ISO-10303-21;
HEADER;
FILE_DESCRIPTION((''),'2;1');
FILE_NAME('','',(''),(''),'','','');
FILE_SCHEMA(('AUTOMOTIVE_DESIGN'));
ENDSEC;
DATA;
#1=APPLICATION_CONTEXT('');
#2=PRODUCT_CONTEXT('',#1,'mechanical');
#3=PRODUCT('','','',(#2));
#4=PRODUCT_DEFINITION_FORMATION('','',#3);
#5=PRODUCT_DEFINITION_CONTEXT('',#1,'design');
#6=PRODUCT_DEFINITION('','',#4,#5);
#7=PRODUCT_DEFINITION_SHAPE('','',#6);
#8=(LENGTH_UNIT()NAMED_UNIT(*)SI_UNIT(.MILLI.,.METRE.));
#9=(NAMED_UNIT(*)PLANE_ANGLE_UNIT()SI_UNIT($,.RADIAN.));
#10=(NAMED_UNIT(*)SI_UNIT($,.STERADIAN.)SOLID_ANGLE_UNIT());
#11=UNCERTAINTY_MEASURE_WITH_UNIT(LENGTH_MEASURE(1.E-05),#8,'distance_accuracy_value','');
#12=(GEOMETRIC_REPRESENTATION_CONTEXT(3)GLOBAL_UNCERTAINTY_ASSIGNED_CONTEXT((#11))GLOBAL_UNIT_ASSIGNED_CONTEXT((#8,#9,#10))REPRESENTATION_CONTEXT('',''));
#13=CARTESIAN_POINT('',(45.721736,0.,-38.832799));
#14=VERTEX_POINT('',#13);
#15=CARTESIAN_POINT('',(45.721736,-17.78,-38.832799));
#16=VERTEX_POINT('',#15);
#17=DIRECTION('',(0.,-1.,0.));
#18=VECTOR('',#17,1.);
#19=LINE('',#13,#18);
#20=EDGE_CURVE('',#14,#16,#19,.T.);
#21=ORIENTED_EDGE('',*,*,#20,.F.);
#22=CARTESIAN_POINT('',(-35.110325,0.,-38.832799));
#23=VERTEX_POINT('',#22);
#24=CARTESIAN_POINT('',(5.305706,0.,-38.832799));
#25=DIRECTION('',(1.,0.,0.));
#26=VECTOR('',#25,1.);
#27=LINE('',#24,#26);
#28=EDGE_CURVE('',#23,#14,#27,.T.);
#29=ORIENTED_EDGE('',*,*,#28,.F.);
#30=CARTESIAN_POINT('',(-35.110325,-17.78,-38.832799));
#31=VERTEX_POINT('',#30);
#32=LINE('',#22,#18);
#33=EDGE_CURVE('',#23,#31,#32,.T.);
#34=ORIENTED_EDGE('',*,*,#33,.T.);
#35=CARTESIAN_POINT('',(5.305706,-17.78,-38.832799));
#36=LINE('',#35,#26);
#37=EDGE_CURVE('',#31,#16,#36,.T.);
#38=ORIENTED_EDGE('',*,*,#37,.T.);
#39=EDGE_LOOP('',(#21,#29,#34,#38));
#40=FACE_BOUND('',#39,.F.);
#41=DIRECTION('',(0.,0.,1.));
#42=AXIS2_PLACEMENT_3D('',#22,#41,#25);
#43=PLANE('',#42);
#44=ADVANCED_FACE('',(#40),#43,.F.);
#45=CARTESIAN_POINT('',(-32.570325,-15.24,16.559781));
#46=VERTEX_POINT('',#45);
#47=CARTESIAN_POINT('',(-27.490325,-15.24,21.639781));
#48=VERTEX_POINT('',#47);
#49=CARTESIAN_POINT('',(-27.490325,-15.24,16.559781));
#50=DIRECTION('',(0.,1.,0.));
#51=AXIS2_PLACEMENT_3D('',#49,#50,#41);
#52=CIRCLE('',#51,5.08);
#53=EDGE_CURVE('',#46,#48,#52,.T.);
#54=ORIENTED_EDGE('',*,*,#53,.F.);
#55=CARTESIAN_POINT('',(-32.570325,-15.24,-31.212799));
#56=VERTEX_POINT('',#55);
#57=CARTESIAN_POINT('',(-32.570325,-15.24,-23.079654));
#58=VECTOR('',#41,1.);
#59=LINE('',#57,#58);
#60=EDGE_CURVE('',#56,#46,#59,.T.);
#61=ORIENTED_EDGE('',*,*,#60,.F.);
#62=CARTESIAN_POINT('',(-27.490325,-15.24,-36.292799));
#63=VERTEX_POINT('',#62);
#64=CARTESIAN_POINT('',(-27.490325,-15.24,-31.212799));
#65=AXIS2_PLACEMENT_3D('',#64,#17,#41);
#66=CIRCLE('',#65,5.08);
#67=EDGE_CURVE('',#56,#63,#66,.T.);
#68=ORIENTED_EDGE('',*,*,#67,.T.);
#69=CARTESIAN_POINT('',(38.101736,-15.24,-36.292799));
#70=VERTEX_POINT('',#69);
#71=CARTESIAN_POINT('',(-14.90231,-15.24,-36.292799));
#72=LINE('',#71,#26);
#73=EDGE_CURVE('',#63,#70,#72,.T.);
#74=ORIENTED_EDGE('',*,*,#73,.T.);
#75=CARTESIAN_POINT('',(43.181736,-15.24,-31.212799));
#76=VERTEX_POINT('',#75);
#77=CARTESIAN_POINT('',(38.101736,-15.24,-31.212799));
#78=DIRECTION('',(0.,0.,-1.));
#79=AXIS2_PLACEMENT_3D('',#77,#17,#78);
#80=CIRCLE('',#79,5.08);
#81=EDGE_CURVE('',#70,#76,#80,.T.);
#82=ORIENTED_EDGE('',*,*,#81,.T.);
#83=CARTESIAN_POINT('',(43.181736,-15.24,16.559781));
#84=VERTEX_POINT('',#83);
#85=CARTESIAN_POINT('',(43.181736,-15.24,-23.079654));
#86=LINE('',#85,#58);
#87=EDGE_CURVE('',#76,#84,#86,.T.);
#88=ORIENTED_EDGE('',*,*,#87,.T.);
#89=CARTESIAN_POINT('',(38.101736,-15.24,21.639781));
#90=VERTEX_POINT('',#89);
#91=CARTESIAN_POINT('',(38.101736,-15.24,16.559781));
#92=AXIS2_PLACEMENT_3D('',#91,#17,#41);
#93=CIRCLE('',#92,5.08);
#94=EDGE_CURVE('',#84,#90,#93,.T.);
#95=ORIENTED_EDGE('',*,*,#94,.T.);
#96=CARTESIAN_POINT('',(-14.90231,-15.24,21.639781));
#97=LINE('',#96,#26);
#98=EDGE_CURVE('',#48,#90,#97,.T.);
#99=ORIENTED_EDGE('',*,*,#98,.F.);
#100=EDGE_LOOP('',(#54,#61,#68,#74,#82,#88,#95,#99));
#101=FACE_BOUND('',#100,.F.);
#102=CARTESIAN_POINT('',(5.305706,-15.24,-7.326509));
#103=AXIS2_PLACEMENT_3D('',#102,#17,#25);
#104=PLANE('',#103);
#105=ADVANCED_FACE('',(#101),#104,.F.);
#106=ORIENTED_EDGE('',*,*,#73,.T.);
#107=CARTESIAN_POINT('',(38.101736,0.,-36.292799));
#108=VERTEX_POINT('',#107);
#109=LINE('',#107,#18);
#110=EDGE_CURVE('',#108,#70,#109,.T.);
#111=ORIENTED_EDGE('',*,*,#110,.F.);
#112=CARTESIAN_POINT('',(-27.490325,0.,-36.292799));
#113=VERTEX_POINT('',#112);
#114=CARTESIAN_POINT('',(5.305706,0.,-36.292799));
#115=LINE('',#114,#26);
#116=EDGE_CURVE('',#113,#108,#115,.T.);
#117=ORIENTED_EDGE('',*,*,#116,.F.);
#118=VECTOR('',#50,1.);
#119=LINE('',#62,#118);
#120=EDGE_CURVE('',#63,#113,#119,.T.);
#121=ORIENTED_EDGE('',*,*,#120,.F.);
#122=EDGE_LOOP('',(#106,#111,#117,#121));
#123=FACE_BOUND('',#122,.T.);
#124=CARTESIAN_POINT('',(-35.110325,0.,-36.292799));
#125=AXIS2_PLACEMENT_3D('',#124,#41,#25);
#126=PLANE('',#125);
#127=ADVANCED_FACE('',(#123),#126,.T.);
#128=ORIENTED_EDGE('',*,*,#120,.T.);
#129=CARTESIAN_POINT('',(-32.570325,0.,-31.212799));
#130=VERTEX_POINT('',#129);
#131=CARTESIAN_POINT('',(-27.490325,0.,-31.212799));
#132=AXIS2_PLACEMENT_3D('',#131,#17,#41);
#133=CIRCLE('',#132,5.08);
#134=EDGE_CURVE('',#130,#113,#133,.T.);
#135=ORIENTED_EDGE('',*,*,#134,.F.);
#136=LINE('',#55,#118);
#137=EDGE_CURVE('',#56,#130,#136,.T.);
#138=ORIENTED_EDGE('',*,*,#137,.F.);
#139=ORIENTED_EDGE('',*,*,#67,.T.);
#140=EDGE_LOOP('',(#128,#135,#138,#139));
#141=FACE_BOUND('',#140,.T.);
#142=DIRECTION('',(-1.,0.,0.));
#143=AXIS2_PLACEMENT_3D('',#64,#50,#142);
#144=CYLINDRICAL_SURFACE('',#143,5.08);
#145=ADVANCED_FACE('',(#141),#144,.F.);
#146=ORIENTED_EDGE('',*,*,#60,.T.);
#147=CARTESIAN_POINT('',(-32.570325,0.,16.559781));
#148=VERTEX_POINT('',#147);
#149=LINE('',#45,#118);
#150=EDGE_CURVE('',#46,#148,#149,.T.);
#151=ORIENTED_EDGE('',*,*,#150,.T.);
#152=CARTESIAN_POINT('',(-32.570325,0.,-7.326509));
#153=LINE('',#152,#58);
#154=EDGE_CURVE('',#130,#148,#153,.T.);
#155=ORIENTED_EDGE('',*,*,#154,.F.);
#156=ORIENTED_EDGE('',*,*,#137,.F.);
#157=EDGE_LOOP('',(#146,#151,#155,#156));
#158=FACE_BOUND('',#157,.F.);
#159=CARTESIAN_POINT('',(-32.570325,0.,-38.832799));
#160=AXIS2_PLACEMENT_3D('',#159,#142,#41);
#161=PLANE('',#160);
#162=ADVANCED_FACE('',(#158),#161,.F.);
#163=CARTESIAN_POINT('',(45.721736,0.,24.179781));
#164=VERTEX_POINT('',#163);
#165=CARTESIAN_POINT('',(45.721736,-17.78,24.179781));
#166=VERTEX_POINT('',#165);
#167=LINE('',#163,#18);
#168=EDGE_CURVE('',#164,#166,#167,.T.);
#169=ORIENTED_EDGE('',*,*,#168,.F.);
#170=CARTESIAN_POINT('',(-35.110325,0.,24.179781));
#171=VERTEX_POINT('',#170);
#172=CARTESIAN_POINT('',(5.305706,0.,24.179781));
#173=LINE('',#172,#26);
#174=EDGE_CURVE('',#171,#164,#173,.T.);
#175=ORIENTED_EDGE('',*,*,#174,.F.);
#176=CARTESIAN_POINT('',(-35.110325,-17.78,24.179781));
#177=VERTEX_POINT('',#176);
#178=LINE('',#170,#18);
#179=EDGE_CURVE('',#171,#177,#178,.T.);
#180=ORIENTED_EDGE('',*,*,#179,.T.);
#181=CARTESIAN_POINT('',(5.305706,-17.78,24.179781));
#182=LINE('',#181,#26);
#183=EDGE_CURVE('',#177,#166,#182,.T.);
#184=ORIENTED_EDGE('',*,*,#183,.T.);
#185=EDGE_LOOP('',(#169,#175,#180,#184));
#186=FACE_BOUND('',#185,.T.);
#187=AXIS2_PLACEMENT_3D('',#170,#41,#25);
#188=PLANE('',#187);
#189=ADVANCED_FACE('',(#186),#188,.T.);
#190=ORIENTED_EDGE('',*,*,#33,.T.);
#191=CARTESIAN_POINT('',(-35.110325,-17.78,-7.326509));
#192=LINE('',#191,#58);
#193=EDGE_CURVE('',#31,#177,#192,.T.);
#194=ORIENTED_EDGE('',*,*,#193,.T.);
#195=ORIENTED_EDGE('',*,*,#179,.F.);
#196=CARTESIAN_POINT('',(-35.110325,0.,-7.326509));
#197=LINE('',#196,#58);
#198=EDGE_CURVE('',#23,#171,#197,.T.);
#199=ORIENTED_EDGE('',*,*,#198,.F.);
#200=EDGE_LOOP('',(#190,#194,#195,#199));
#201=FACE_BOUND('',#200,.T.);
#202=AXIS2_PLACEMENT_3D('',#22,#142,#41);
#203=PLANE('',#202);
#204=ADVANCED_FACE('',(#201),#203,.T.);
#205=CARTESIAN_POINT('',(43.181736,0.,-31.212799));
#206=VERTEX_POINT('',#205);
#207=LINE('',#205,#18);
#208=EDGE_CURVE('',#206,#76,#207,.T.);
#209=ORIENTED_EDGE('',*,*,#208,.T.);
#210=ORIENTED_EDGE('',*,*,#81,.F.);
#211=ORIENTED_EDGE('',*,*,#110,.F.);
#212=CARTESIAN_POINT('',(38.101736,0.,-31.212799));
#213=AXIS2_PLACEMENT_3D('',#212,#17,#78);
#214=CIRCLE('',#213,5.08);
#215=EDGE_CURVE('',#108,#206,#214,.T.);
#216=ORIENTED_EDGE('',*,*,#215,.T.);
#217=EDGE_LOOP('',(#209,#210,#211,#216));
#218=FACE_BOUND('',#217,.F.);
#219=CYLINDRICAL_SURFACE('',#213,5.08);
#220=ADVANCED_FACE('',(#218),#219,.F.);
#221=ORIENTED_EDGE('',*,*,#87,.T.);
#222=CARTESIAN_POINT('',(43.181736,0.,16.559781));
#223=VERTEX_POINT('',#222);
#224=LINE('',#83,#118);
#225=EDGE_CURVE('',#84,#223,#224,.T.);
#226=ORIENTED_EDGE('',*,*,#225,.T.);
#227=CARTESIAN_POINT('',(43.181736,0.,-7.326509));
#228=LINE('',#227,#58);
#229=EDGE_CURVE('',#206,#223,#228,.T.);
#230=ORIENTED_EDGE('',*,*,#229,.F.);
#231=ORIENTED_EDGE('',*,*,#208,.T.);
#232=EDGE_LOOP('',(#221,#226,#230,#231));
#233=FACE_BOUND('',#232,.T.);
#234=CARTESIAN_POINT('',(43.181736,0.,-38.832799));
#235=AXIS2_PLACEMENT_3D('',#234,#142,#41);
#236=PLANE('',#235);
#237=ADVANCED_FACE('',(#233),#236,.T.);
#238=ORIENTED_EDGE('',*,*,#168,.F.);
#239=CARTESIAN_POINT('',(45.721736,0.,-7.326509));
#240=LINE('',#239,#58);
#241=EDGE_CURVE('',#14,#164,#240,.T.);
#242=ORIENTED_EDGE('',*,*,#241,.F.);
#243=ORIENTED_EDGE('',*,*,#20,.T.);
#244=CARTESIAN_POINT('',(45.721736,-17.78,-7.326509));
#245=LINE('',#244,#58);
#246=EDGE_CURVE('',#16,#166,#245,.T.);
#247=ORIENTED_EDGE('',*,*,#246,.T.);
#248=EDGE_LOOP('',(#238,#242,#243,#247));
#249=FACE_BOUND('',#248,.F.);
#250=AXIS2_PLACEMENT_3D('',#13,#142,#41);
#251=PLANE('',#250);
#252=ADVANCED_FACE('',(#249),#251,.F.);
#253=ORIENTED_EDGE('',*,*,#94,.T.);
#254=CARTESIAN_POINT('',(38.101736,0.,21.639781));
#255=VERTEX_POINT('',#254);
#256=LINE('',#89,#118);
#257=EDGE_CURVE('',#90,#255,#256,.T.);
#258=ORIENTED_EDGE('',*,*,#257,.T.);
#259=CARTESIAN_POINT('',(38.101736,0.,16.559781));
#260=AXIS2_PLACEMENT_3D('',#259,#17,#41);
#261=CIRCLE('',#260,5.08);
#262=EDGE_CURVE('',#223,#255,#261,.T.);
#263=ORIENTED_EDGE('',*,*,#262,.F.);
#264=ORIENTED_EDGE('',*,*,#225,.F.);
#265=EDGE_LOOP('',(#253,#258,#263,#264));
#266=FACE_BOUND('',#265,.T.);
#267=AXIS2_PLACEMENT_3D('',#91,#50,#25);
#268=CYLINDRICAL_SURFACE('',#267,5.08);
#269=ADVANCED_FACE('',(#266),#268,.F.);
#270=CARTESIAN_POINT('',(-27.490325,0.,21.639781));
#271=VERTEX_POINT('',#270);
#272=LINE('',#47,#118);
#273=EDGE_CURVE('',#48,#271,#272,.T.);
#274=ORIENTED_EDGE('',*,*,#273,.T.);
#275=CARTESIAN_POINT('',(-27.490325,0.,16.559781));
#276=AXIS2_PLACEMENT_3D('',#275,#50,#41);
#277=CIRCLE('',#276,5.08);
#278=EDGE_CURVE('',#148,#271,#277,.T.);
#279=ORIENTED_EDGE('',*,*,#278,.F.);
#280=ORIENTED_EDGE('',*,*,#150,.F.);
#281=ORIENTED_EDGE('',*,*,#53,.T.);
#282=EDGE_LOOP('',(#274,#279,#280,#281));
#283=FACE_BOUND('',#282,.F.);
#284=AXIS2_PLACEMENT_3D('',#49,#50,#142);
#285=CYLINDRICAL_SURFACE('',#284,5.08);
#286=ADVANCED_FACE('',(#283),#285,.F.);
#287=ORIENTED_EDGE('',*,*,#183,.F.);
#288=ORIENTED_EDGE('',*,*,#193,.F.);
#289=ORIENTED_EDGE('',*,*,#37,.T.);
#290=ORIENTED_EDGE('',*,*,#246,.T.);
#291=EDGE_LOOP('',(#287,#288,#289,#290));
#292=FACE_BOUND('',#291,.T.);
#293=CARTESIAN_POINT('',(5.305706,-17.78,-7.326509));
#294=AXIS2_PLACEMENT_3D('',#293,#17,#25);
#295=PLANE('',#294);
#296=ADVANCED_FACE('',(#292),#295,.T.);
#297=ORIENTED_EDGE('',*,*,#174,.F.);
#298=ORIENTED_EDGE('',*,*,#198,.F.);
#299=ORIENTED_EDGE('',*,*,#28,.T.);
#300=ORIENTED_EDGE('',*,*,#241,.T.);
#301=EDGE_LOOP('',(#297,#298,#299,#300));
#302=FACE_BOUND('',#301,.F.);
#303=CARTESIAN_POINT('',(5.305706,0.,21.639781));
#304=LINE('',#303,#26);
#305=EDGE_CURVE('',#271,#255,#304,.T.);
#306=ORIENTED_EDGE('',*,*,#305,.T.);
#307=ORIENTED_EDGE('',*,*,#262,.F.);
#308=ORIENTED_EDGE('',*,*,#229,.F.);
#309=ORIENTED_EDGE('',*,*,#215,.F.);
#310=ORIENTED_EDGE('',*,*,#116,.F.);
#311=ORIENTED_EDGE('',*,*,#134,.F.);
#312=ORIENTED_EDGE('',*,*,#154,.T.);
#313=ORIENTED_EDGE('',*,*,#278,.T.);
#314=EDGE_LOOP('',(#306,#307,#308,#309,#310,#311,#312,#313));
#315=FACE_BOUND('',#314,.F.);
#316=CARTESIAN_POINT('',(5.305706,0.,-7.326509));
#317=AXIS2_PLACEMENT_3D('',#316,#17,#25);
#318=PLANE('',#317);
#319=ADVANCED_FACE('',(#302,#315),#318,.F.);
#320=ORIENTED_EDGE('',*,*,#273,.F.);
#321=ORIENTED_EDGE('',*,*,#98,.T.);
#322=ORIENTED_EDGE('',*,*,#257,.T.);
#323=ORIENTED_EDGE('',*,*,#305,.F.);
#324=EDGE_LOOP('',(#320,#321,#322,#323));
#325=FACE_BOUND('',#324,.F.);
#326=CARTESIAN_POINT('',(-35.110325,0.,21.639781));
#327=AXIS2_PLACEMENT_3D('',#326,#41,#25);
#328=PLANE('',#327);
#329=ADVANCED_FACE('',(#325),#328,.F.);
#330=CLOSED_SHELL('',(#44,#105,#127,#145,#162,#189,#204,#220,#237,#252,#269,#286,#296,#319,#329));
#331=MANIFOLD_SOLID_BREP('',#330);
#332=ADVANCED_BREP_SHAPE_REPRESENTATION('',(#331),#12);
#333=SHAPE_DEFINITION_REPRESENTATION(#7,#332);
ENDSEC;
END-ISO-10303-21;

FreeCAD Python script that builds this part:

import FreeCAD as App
import Part
import Sketcher
Q = App.Units.Quantity


def edges_at(feature, points):
    """Names of the edges that pass closest to the given points."""
    edges = feature.Shape.Edges
    near = lambda p: min(range(len(edges)), key=lambda i: edges[i].distToShape(Part.Vertex(*p))[0])
    return sorted({f"Edge{near(p) + 1}" for p in points})


def faces_at(feature, points):
    """Names of the faces that lie closest to the given points."""
    faces = feature.Shape.Faces
    near = lambda p: min(range(len(faces)), key=lambda i: faces[i].distToShape(Part.Vertex(*p))[0])
    return sorted({f"Face{near(p) + 1}" for p in points})

doc = App.newDocument("Part")
body = doc.addObject("PartDesign::Body", "Body")

# Sketch on XZ plane
sketch1 = body.newObject("Sketcher::SketchObject", "Sketch")
sketch1.AttachmentSupport = (doc.getObject("XZ_Plane"), [""])
sketch1.MapMode = "FlatFace"
sketch1.addGeometry([
    Part.LineSegment(App.Vector(-35.110325, 24.179781, 0), App.Vector(-35.110325, -38.832799, 0)),
    Part.LineSegment(App.Vector(-35.110325, -38.832799, 0), App.Vector(45.721736, -38.832799, 0)),
    Part.LineSegment(App.Vector(45.721736, -38.832799, 0), App.Vector(45.721736, 24.179781, 0)),
    Part.LineSegment(App.Vector(45.721736, 24.179781, 0), App.Vector(-35.110325, 24.179781, 0)),
], False)
sketch1.addConstraint([
    Sketcher.Constraint("Coincident", 0, 2, 1, 1),
    Sketcher.Constraint("Coincident", 1, 2, 2, 1),
    Sketcher.Constraint("Coincident", 2, 2, 3, 1),
    Sketcher.Constraint("Coincident", 3, 2, 0, 1),
    Sketcher.Constraint("Vertical", 0),
    Sketcher.Constraint("Horizontal", 1),
    Sketcher.Constraint("Vertical", 2),
    Sketcher.Constraint("Horizontal", 3),
    Sketcher.Constraint("DistanceX", 1, 1, 1, 2, 80.83206),
    Sketcher.Constraint("DistanceY", 0, 2, 0, 1, 63.012579),
    Sketcher.Constraint("DistanceY", 0, 2, -1, 1, 38.832799),
    Sketcher.Constraint("DistanceX", 0, 2, -1, 1, 35.110325),
])
pad1 = body.newObject("PartDesign::Pad", "Pad")
pad1.Profile = sketch1
pad1.Length = Q("0.7 in")
doc.recompute()

thickness = body.newObject("PartDesign::Thickness", "Thickness")
thickness.Base = (pad1, faces_at(pad1, [(5.306, 0, -7.327)]))
thickness.Value = Q("0.1 in")
thickness.Reversed = True
thickness.Join = "Arc"
doc.recompute()

fillet = body.newObject("PartDesign::Fillet", "Fillet")
fillet.Base = (thickness, edges_at(thickness, [
    (-32.57, -7.62, 21.64),
    (43.182, -7.62, 21.64),
    (43.182, -7.62, -36.293),
    (-32.57, -7.62, -36.293),
]))
fillet.Radius = Q("0.2 in")

doc.recompute()
